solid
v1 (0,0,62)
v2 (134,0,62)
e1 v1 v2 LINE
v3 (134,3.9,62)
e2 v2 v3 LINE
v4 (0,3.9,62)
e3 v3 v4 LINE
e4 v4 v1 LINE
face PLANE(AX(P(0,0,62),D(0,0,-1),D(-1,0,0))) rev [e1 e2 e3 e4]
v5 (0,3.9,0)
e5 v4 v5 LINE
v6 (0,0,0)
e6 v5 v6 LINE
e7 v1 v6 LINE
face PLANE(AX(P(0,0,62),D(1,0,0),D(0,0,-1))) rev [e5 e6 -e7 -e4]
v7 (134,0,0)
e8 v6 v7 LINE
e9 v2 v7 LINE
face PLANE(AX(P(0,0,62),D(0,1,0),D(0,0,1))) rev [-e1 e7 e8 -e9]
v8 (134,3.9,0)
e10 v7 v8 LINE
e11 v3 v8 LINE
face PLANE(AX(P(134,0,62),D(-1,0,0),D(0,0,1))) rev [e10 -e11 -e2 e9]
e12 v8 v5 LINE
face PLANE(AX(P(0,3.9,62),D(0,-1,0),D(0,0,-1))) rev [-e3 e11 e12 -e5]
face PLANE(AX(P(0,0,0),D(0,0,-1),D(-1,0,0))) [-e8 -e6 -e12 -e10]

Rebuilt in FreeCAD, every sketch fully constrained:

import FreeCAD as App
import Part
import Sketcher
from FreeCAD import Vector

doc = App.newDocument("Part")
body = doc.addObject("PartDesign::Body", "Body")

sketch1 = doc.addObject("Sketcher::SketchObject", "Sketch")
body.addObject(sketch1)
sketch1.AttachmentSupport = (doc.XY_Plane, [""])
sketch1.MapMode = "FlatFace"
sketch1.addGeometry(Part.LineSegment(Vector(0, 3.9, 0), Vector(0, 0, 0)), False)
sketch1.addGeometry(Part.LineSegment(Vector(0, 0, 0), Vector(134, 0, 0)), False)
sketch1.addGeometry(Part.LineSegment(Vector(134, 0, 0), Vector(134, 3.9, 0)), False)
sketch1.addGeometry(Part.LineSegment(Vector(134, 3.9, 0), Vector(0, 3.9, 0)), False)
sketch1.addConstraint(Sketcher.Constraint("Coincident", 0, 2, 1, 1))
sketch1.addConstraint(Sketcher.Constraint("Coincident", 1, 2, 2, 1))
sketch1.addConstraint(Sketcher.Constraint("Coincident", 2, 2, 3, 1))
sketch1.addConstraint(Sketcher.Constraint("Coincident", 3, 2, 0, 1))
sketch1.addConstraint(Sketcher.Constraint("Vertical", 0))
sketch1.addConstraint(Sketcher.Constraint("Horizontal", 1))
sketch1.addConstraint(Sketcher.Constraint("Vertical", 2))
sketch1.addConstraint(Sketcher.Constraint("Horizontal", 3))
sketch1.addConstraint(Sketcher.Constraint("Coincident", 0, 2, -1, 1))
sketch1.addConstraint(Sketcher.Constraint("DistanceX", 1, 1, 1, 2, 134.0))
sketch1.addConstraint(Sketcher.Constraint("DistanceY", 0, 2, 0, 1, 3.9))
pad1 = doc.addObject("PartDesign::Pad", "Pad")
body.addObject(pad1)
pad1.Profile = sketch1
pad1.Length = 62

doc.recompute()
